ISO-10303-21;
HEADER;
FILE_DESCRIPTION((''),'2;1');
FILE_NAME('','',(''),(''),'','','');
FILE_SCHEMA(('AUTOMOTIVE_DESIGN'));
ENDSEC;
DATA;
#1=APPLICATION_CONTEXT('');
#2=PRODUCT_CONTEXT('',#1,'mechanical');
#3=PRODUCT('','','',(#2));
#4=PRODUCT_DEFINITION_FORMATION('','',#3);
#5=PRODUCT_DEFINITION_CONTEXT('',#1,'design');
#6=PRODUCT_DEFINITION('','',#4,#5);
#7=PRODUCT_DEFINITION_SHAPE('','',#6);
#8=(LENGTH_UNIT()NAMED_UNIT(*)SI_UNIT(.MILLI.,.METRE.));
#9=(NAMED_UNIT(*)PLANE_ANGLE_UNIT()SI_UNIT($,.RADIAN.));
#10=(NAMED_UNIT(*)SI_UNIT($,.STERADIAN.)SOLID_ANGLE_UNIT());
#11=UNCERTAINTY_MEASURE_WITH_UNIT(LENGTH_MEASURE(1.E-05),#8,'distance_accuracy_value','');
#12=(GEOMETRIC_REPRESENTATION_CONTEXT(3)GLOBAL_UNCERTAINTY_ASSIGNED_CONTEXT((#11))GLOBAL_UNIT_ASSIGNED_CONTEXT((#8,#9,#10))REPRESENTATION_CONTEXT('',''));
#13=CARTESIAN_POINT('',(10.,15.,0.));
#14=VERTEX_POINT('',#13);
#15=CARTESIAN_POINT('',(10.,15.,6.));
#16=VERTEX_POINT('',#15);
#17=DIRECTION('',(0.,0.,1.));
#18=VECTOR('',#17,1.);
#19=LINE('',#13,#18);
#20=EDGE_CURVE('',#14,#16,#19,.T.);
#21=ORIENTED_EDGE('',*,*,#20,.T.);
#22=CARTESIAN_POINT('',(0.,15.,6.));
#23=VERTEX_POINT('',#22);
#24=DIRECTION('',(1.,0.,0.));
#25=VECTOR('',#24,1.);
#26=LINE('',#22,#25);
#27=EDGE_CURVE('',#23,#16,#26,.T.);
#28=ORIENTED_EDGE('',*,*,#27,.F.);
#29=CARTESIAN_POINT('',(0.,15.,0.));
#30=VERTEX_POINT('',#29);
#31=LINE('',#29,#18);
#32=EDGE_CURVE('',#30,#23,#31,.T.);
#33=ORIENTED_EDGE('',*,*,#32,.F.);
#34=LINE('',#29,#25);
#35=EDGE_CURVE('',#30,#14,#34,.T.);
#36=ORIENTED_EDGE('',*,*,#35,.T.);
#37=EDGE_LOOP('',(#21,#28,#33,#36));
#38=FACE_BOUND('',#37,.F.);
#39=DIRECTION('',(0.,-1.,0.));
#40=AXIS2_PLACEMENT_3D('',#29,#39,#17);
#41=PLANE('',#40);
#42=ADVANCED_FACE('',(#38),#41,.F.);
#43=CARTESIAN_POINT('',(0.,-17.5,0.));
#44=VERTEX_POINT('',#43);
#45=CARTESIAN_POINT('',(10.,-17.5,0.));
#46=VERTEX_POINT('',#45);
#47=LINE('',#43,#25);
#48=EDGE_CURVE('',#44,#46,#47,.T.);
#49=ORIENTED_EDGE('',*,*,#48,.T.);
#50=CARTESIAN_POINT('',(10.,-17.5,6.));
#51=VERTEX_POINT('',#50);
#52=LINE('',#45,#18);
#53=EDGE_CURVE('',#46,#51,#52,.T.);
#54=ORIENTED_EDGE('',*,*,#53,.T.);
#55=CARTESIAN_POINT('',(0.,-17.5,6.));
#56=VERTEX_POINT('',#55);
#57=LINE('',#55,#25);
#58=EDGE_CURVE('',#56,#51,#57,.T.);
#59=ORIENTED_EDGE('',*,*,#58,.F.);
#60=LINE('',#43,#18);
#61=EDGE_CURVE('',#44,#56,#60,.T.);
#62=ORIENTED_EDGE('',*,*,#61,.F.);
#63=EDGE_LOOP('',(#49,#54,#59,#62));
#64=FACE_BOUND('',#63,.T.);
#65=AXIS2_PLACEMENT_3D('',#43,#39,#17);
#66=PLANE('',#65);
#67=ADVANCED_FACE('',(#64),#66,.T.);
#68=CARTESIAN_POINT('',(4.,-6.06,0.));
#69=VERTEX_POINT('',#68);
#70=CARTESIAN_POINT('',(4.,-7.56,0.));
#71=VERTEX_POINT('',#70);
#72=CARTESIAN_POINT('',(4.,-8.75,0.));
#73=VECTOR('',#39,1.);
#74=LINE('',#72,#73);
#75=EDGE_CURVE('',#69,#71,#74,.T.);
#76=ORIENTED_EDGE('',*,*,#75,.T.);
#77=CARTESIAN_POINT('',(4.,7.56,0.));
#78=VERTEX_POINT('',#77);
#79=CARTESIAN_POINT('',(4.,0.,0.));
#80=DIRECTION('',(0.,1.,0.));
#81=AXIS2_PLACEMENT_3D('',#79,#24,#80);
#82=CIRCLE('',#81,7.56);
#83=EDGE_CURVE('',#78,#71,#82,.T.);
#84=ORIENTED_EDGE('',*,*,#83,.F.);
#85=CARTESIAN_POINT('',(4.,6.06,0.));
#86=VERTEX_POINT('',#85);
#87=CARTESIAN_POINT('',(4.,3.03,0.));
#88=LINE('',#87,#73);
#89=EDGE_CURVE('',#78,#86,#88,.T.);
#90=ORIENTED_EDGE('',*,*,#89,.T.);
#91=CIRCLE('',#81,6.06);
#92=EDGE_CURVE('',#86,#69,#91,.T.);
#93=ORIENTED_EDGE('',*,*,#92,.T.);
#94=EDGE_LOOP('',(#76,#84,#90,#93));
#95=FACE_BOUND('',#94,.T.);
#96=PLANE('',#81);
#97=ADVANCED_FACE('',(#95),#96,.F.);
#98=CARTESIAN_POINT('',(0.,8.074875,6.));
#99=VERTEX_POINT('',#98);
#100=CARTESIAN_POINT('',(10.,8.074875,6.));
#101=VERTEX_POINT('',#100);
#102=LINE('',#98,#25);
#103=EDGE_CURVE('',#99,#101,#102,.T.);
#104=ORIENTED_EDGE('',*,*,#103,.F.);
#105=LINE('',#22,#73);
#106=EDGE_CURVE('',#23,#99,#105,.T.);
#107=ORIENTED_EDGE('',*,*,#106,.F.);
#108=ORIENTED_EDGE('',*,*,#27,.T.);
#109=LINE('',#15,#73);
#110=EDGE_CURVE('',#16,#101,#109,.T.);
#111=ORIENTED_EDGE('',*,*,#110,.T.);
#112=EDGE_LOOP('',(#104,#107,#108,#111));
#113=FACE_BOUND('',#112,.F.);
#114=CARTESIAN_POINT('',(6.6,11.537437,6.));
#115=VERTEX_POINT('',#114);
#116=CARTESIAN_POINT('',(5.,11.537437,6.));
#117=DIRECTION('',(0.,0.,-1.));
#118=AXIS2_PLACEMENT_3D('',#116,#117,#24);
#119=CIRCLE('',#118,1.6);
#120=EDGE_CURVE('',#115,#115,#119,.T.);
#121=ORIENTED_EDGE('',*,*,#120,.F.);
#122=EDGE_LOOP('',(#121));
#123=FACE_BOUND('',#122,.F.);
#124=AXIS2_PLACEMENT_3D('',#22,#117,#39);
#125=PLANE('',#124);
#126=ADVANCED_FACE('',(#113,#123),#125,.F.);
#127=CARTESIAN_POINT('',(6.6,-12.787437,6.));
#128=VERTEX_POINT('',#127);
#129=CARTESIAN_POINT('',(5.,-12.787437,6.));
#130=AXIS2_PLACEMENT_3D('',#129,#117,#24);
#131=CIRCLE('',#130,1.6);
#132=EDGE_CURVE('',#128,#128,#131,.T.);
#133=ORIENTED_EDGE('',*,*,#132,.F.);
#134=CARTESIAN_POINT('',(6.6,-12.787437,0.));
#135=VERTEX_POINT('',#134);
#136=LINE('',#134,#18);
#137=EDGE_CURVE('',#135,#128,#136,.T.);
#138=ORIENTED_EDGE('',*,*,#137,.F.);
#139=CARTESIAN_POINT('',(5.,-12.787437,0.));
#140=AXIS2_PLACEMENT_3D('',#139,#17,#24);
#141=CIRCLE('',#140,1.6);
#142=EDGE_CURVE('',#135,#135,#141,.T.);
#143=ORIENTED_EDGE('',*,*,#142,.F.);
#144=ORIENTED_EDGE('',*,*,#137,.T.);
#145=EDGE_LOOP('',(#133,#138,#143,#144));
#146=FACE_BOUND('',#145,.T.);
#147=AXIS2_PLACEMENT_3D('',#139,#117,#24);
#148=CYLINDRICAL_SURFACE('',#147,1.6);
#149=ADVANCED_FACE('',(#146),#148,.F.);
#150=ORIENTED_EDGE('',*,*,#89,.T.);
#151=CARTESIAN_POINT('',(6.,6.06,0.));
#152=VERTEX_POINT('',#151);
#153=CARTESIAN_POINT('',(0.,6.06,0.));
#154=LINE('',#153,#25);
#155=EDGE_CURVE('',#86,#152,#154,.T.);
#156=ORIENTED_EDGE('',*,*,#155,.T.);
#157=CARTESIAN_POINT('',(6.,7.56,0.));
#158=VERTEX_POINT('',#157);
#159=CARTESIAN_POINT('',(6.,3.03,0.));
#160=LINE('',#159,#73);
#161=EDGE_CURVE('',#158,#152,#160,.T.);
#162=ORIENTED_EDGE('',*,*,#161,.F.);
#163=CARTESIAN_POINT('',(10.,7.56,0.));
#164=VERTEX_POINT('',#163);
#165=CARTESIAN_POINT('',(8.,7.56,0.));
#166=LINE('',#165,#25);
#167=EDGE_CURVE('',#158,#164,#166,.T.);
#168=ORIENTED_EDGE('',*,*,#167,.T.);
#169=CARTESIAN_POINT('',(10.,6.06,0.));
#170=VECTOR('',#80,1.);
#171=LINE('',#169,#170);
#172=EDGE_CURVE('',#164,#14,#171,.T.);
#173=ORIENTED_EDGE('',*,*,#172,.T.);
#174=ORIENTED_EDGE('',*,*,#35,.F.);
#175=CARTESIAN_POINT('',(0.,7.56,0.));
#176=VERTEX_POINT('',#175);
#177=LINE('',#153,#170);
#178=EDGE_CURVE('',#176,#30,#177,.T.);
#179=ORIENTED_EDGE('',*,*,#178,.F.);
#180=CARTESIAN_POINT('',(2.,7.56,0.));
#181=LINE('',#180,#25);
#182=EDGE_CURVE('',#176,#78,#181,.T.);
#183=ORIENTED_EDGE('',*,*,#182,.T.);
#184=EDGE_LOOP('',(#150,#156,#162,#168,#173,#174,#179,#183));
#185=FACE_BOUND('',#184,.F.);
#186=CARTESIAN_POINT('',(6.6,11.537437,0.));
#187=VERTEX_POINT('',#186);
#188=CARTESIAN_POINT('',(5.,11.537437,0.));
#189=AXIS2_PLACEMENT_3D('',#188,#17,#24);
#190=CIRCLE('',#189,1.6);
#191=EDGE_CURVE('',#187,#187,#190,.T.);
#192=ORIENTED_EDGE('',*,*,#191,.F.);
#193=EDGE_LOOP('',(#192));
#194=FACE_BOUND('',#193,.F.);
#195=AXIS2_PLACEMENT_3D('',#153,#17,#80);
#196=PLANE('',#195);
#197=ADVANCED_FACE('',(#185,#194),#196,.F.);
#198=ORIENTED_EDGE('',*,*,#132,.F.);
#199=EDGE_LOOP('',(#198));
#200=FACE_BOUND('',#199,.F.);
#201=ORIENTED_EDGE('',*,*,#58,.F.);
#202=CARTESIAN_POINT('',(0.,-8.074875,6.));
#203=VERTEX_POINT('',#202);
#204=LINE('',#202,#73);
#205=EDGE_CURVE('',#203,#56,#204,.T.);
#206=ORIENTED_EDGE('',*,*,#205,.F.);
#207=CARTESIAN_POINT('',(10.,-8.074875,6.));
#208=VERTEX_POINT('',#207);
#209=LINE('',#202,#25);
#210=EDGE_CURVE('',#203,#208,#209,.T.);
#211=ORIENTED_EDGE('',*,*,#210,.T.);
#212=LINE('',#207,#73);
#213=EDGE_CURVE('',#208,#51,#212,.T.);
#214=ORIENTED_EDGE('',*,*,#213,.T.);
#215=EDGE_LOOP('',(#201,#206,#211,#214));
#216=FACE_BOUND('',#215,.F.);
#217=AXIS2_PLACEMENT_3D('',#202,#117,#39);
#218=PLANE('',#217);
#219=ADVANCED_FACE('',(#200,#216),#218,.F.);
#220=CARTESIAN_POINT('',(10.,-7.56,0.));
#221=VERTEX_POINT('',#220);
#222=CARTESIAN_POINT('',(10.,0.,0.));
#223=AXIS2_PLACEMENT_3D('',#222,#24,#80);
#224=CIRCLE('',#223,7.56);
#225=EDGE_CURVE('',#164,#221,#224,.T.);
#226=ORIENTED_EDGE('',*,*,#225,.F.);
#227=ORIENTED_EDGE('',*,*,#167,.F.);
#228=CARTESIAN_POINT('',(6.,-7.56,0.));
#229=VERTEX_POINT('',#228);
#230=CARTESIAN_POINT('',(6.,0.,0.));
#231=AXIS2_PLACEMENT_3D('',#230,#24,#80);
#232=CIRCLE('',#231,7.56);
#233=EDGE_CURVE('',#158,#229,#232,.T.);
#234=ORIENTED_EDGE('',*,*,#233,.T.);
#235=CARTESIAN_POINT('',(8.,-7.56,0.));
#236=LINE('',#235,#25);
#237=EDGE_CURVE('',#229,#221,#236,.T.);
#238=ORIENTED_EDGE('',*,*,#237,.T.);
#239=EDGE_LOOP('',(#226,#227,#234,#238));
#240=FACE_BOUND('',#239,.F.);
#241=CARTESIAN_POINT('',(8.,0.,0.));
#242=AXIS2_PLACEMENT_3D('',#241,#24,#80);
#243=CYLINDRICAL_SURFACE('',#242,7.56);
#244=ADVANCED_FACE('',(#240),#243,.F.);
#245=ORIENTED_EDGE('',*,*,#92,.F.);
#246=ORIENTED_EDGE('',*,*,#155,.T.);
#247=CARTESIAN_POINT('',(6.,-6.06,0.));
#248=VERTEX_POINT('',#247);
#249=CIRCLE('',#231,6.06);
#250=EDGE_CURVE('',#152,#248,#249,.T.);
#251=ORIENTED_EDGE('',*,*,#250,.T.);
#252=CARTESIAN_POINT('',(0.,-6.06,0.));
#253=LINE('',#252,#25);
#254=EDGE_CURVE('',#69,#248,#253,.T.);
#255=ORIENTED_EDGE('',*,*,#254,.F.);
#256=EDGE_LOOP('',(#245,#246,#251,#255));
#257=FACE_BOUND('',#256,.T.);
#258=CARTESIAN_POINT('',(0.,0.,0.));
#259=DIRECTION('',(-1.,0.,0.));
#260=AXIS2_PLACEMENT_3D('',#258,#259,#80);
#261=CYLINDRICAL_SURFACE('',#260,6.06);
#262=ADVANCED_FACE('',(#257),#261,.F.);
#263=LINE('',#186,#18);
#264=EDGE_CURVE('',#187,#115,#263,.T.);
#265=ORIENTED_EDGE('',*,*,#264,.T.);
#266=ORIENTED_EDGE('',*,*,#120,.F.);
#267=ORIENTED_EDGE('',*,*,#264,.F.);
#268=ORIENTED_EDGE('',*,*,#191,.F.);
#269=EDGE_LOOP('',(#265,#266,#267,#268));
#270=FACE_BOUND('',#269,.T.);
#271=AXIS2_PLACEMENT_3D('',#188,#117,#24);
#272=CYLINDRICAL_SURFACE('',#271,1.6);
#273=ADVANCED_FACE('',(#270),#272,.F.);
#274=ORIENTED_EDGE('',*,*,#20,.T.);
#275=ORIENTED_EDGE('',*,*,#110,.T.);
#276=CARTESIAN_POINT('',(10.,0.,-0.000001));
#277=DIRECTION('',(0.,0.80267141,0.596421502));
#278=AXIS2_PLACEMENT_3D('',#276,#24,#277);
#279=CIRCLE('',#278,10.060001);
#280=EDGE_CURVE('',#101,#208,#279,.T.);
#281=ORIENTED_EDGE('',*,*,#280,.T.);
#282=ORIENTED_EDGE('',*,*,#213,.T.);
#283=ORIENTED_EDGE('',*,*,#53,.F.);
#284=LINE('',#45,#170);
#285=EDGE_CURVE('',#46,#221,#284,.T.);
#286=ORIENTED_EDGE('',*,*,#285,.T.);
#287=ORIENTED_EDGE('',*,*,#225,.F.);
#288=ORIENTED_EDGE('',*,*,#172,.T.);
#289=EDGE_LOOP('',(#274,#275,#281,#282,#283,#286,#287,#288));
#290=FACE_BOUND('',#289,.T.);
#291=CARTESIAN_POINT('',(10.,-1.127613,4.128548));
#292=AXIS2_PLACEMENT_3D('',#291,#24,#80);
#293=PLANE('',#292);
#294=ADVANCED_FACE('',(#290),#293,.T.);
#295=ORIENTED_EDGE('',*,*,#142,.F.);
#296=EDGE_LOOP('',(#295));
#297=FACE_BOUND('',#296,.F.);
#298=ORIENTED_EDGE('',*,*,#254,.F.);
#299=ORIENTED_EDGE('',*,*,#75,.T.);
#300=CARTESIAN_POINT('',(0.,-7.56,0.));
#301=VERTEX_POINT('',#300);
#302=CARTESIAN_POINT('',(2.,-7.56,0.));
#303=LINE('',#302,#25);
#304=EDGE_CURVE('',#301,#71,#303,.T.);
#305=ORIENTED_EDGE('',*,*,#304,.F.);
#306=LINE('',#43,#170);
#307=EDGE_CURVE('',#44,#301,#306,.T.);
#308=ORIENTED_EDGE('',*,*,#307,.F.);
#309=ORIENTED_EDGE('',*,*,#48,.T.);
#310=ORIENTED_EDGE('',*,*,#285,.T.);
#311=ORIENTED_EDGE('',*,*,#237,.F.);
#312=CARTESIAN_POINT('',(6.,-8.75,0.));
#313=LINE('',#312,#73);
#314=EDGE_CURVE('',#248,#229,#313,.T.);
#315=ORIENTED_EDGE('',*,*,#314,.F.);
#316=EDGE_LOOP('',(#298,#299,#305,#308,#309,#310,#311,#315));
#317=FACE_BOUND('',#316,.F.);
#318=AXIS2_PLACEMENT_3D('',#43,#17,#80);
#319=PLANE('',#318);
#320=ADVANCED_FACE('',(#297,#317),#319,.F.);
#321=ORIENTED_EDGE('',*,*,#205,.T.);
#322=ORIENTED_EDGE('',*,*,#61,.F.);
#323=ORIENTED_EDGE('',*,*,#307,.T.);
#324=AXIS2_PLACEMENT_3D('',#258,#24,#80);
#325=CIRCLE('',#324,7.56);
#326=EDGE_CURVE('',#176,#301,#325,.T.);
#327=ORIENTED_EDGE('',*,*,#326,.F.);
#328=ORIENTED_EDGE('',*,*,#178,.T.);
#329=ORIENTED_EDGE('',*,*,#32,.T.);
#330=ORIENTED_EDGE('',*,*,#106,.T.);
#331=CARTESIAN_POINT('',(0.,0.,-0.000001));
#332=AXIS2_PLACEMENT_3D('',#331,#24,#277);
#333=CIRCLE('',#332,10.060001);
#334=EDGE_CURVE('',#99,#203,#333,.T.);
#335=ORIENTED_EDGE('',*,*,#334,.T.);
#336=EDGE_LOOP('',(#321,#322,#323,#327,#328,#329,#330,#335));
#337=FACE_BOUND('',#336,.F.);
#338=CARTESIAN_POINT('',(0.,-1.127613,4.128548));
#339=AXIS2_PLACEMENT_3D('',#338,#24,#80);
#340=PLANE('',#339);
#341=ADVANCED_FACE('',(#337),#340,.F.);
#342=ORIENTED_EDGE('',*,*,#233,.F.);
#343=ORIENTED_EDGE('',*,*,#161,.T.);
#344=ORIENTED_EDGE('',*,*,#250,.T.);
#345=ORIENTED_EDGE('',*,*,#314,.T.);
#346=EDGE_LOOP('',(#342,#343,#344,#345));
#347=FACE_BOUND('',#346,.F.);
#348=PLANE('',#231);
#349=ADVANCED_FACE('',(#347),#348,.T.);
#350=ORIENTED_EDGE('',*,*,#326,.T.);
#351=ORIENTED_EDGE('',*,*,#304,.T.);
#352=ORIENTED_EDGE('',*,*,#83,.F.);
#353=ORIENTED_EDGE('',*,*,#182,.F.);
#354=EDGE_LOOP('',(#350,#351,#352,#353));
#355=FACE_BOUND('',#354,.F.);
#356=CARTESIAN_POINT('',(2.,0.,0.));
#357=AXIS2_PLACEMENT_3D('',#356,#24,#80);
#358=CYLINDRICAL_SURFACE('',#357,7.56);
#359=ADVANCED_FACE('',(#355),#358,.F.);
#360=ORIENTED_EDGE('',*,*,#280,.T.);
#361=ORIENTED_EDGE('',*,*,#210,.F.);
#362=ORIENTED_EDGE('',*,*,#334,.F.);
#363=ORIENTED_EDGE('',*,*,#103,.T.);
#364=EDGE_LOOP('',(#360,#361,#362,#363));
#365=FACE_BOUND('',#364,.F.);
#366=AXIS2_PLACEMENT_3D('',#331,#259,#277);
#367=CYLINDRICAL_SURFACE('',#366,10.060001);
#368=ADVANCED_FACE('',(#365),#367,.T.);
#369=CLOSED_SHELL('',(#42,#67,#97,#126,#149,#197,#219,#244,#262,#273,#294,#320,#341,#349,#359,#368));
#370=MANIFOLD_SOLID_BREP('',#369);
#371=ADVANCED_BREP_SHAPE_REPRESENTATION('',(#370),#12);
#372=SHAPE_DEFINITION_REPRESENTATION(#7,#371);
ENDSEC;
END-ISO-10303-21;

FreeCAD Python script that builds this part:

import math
import FreeCAD as App
import Part
import Sketcher


def add_polygon(sketch, points):
    """Adds a closed chain of lines whose ends are joined by coincident constraints."""
    first, n = sketch.GeometryCount, len(points)
    for a, b in zip(points, points[1:] + points[:1]):
        sketch.addGeometry(Part.LineSegment(App.Vector(*a, 0), App.Vector(*b, 0)), False)
    for i in range(n):
        sketch.addConstraint(Sketcher.Constraint("Coincident", first + i, 2, first + (i + 1) % n, 1))

doc = App.newDocument("Part")
body = doc.addObject("PartDesign::Body", "Body")

# Sketch on YZ plane
sketch1 = body.newObject("Sketcher::SketchObject", "Sketch")
sketch1.AttachmentSupport = (doc.getObject("YZ_Plane"), [""])
sketch1.MapMode = "FlatFace"
sketch1.addGeometry([
    Part.LineSegment(App.Vector(-18, 0, 0), App.Vector(-6, 0, 0)),  # 0
    Part.ArcOfCircle(Part.Circle(App.Vector(0, 0, 0), App.Vector(0, 0, 1), 6), math.radians(0), math.radians(180)),  # 1
    Part.LineSegment(App.Vector(6, 0, 0), App.Vector(15, 0, 0)),  # 2
    Part.LineSegment(App.Vector(15, 0, 0), App.Vector(15, 6, 0)),  # 3
    Part.LineSegment(App.Vector(15, 6, 0), App.Vector(8, 6, 0)),  # 4
    Part.ArcOfCircle(Part.Circle(App.Vector(0, 0, 0), App.Vector(0, 0, 1), 10), math.radians(37), math.radians(143)),  # 5
    Part.LineSegment(App.Vector(-8, 6, 0), App.Vector(-18, 6, 0)),  # 6
    Part.LineSegment(App.Vector(-18, 6, 0), App.Vector(-18, 0, 0)),  # 7
], False)
sketch1.addConstraint([
    Sketcher.Constraint("Coincident", 0, 2, 1, 2),
    Sketcher.Constraint("Coincident", 1, 1, 2, 1),
    Sketcher.Constraint("Coincident", 2, 2, 3, 1),
    Sketcher.Constraint("Coincident", 3, 2, 4, 1),
    Sketcher.Constraint("Coincident", 4, 2, 5, 1),
    Sketcher.Constraint("Coincident", 5, 2, 6, 1),
    Sketcher.Constraint("Coincident", 6, 2, 7, 1),
    Sketcher.Constraint("Coincident", 7, 2, 0, 1),
    Sketcher.Constraint("Horizontal", 0),
    Sketcher.Constraint("Horizontal", 2),
    Sketcher.Constraint("Vertical", 3),
    Sketcher.Constraint("Horizontal", 4),
    Sketcher.Constraint("Horizontal", 6),
    Sketcher.Constraint("Vertical", 7),
    Sketcher.Constraint("Coincident", 1, 3, -1, 1),
    Sketcher.Constraint("Coincident", 5, 3, -1, 1),
    Sketcher.Constraint("PointOnObject", 0, 2, -1),
    Sketcher.Constraint("PointOnObject", 1, 1, -1),
    Sketcher.Constraint("Horizontal", 4, 2, 5, 2),
    Sketcher.Constraint("DistanceY", 3, 1, 3, 2, 6.0),
    Sketcher.Constraint("Radius", 1, 6.06),
    Sketcher.Constraint("Radius", 5, 10.060001),
    Sketcher.Constraint("DistanceX", -1, 1, 2, 2, 15.0),
    Sketcher.Constraint("DistanceX", 0, 1, 0, 2, 11.44),
])
pad1 = body.newObject("PartDesign::Pad", "Pad")
pad1.Profile = sketch1
pad1.Length = 10

# Sketch on XY plane
sketch2 = body.newObject("Sketcher::SketchObject", "Sketch001")
sketch2.AttachmentSupport = (doc.getObject("XY_Plane"), [""])
sketch2.MapMode = "FlatFace"
add_polygon(sketch2, [(6, 7.6), (6, 6.1), (10, 6.1), (10, 7.6)])  # lines 0-3
add_polygon(sketch2, [(0, 7.6), (0, 6.1), (4, 6.1), (4, 7.6)])  # lines 4-7
sketch2.addConstraint([
    Sketcher.Constraint("Vertical", 0),
    Sketcher.Constraint("Horizontal", 1),
    Sketcher.Constraint("Vertical", 2),
    Sketcher.Constraint("Horizontal", 3),
    Sketcher.Constraint("Vertical", 4),
    Sketcher.Constraint("Horizontal", 5),
    Sketcher.Constraint("Vertical", 6),
    Sketcher.Constraint("Horizontal", 7),
    Sketcher.Constraint("PointOnObject", 4, 2, -2),
    Sketcher.Constraint("Horizontal", 1, 2, 4, 2),
    Sketcher.Constraint("Horizontal", 3, 2, 6, 2),
    Sketcher.Constraint("Equal", 3, 5),
    Sketcher.Constraint("DistanceX", 1, 1, 1, 2, 4.0),
    Sketcher.Constraint("DistanceY", 0, 2, 0, 1, 1.5),
    Sketcher.Constraint("DistanceX", -1, 1, 0, 2, 6.0),
    Sketcher.Constraint("DistanceY", -1, 1, 0, 2, 6.06),
])
groove = body.newObject("PartDesign::Groove", "Groove")
groove.Profile = sketch2
groove.ReferenceAxis = (sketch2, ["H_Axis"])
groove.Angle = 360

# Sketch on XY plane
sketch3 = body.newObject("Sketcher::SketchObject", "Sketch002")
sketch3.AttachmentSupport = (doc.getObject("XY_Plane"), [""])
sketch3.MapMode = "FlatFace"
sketch3.addGeometry([
    Part.Circle(App.Vector(5, 11.5, 0), App.Vector(0, 0, 1), 1.6),
    Part.Circle(App.Vector(5, -12.8, 0), App.Vector(0, 0, 1), 1.6),
], False)
sketch3.addConstraint([
    Sketcher.Constraint("Equal", 0, 1),
    Sketcher.Constraint("Vertical", 0, 3, 1, 3),
    Sketcher.Constraint("Diameter", 0, 3.2),
    Sketcher.Constraint("DistanceX", -1, 1, 0, 3, 5.0),
    Sketcher.Constraint("DistanceY", -1, 1, 0, 3, 11.537437),
    Sketcher.Constraint("DistanceY", 1, 3, -1, 1, 12.787437),
])
pocket1 = body.newObject("PartDesign::Pocket", "Pocket")
pocket1.Profile = sketch3
pocket1.Type = "ThroughAll"
pocket1.Reversed = True

doc.recompute()
